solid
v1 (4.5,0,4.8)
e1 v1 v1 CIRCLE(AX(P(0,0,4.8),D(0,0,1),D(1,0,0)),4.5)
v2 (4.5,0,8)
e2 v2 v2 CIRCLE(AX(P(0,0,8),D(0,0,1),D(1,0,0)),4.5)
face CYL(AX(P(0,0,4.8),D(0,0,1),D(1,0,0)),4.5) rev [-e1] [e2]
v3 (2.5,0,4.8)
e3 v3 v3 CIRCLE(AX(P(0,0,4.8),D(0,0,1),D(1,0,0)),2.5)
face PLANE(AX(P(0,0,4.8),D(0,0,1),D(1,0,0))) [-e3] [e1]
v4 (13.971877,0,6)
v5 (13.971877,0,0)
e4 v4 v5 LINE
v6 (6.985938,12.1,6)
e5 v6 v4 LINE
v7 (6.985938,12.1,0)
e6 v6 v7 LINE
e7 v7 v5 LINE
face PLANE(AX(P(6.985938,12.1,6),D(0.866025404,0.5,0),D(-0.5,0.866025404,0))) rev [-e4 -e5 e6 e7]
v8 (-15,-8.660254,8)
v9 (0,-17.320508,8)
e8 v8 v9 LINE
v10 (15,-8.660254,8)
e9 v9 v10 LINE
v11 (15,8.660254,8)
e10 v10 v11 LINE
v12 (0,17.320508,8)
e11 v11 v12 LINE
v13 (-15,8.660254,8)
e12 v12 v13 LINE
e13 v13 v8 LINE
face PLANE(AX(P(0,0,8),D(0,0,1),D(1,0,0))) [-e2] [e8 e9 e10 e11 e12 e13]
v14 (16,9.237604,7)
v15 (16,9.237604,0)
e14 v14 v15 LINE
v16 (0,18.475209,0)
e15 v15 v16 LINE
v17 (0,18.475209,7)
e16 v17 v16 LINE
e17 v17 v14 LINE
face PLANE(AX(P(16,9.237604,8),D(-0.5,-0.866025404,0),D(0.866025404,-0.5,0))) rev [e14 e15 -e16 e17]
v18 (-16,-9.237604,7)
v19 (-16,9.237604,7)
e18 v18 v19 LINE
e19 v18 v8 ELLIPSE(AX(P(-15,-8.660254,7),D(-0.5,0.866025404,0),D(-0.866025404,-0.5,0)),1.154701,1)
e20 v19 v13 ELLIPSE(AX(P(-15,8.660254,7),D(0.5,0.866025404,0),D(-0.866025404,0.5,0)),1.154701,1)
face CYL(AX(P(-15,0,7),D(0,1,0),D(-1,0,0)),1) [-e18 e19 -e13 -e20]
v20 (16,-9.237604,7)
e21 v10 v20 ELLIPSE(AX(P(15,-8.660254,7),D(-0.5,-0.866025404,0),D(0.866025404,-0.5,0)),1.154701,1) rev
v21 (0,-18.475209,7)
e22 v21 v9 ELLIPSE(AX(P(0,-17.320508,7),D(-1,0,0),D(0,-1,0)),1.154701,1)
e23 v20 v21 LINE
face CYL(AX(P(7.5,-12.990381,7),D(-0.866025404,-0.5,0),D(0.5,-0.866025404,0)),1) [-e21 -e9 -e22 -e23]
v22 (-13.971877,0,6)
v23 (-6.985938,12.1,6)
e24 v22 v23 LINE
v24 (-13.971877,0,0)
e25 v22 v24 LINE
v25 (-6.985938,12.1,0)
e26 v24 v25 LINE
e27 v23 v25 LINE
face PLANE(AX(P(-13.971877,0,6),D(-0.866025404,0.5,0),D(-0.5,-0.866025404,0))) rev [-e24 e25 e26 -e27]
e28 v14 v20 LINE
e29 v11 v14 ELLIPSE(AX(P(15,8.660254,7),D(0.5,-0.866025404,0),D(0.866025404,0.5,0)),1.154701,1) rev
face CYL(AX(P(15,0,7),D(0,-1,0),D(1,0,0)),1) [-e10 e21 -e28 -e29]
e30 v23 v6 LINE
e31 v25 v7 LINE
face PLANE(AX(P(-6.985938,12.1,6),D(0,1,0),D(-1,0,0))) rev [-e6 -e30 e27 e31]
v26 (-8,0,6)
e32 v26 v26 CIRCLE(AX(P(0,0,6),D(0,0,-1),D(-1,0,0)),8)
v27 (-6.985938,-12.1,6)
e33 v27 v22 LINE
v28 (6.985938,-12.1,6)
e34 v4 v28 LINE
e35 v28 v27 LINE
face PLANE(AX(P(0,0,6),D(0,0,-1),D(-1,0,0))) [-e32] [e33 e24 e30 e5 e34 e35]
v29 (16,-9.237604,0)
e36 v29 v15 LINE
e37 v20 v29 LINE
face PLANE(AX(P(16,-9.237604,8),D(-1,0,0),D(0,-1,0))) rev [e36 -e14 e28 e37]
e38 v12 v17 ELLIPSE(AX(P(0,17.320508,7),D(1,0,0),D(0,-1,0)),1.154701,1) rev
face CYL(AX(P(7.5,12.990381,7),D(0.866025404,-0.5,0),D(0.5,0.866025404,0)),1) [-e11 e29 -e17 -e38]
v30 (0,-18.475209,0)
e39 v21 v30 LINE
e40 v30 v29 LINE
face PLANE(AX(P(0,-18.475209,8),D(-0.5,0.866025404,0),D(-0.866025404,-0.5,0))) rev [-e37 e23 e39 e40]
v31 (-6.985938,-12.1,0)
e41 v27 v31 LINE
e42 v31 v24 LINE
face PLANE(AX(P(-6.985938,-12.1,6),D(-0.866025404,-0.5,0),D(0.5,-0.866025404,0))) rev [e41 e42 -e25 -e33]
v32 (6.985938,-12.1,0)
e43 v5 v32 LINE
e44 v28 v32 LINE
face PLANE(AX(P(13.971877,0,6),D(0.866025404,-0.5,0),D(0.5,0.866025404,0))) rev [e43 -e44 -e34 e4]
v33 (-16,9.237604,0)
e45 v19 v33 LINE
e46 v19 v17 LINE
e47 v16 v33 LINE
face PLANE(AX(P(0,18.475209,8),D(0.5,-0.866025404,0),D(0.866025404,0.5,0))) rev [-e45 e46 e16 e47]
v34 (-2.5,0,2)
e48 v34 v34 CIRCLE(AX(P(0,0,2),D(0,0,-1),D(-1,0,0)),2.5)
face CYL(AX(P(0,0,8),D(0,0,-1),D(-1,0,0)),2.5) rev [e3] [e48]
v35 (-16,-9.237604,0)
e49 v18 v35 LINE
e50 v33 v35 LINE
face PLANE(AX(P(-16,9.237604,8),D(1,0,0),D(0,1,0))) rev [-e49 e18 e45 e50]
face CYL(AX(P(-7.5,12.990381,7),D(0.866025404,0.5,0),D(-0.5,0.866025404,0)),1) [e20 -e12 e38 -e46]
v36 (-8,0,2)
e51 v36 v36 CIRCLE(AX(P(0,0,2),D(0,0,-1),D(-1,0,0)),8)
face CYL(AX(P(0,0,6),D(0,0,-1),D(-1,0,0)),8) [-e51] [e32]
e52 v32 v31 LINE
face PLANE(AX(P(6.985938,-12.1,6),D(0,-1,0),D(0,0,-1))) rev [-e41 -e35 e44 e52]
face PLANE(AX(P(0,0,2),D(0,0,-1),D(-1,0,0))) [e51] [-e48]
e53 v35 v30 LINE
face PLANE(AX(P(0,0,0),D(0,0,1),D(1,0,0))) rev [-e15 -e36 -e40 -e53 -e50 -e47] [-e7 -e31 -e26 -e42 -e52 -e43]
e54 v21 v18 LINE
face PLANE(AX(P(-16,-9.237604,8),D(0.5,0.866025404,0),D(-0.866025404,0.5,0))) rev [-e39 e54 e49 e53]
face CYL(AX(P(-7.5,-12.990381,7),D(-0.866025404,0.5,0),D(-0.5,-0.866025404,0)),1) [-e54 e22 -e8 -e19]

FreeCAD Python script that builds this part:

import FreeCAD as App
import Part
import Sketcher

V = App.Vector
Q = App.Units.Quantity


def edges_at(feature, points):
    """Names of the edges that pass closest to the given points."""
    edges = feature.Shape.Edges
    near = lambda p: min(range(len(edges)), key=lambda i: edges[i].distToShape(Part.Vertex(*p))[0])
    return sorted({f"Edge{near(p) + 1}" for p in points})

doc = App.newDocument("Part")
body = doc.addObject("PartDesign::Body", "Body")

# Sketch on XY plane
sketch1 = body.newObject("Sketcher::SketchObject", "Sketch")
sketch1.AttachmentSupport = (doc.getObject("XY_Plane"), [""])
sketch1.MapMode = "FlatFace"
sketch1.addGeometry([
    Part.LineSegment(V(16, 9.2, 0), V(0, 18.5, 0)),  # 0
    Part.LineSegment(V(0, 18.5, 0), V(-16, 9.2, 0)),  # 1
    Part.LineSegment(V(-16, 9.2, 0), V(-16, -9.2, 0)),  # 2
    Part.LineSegment(V(-16, -9.2, 0), V(0, -18.5, 0)),  # 3
    Part.LineSegment(V(0, -18.5, 0), V(16, -9.2, 0)),  # 4
    Part.LineSegment(V(16, -9.2, 0), V(16, 9.2, 0)),  # 5
    Part.Circle(V(0, 0, 0), V(0, 0, 1), 2.5),  # 6
], False)
sketch1.addConstraint([
    Sketcher.Constraint("Coincident", 0, 2, 1, 1),
    Sketcher.Constraint("Coincident", 1, 2, 2, 1),
    Sketcher.Constraint("Coincident", 2, 2, 3, 1),
    Sketcher.Constraint("Coincident", 3, 2, 4, 1),
    Sketcher.Constraint("Coincident", 4, 2, 5, 1),
    Sketcher.Constraint("Coincident", 5, 2, 0, 1),
    Sketcher.Constraint("Vertical", 2),
    Sketcher.Constraint("Vertical", 5),
    Sketcher.Constraint("Coincident", 6, 3, -1, 1),
    Sketcher.Constraint("Symmetric", 0, 2, 3, 2, -1, 1),
    Sketcher.Constraint("Symmetric", 1, 2, 4, 2, -1, 1),
    Sketcher.Constraint("PointOnObject", 0, 2, -2),
    Sketcher.Constraint("Parallel", 0, 3),
    Sketcher.Constraint("Horizontal", 2, 2, 4, 2),
    Sketcher.Constraint("Diameter", 6, Q("5 mm")),
    Sketcher.Constraint("Angle", 0, Q("150 deg")),
    Sketcher.Constraint("DistanceX", 1, 2, -1, 1, Q("16 mm")),
    Sketcher.Constraint("DistanceY", 2, 2, 2, 1, Q("18.475209 mm")),
])
pad1 = body.newObject("PartDesign::Pad", "Pad")
pad1.Profile = sketch1
pad1.Length = 8

# Sketch on XY plane
sketch2 = body.newObject("Sketcher::SketchObject", "Sketch001")
sketch2.AttachmentSupport = (doc.getObject("XY_Plane"), [""])
sketch2.MapMode = "FlatFace"
sketch2.AttachmentOffset = App.Placement(V(0, 0, 8), App.Rotation())
sketch2.addGeometry(Part.Circle(V(0, 0, 0), V(0, 0, 1), 4.5), False)
sketch2.addConstraint([
    Sketcher.Constraint("Coincident", 0, 3, -1, 1),
    Sketcher.Constraint("Diameter", 0, Q("9 mm")),
])
pocket1 = body.newObject("PartDesign::Pocket", "Pocket")
pocket1.Profile = sketch2
pocket1.Length = 3.2

# Sketch on XY plane
sketch3 = body.newObject("Sketcher::SketchObject", "Sketch002")
sketch3.AttachmentSupport = (doc.getObject("XY_Plane"), [""])
sketch3.MapMode = "FlatFace"
sketch3.addGeometry([
    Part.LineSegment(V(-14, 0, 0), V(-7, 12, 0)),  # 0
    Part.LineSegment(V(-7, 12, 0), V(7, 12, 0)),  # 1
    Part.LineSegment(V(7, 12, 0), V(14, 0, 0)),  # 2
    Part.LineSegment(V(14, 0, 0), V(7, -12, 0)),  # 3
    Part.LineSegment(V(7, -12, 0), V(-7, -12, 0)),  # 4
    Part.LineSegment(V(-7, -12, 0), V(-14, 0, 0)),  # 5
    Part.Circle(V(0, 0, 0), V(0, 0, 1), 8),  # 6
], False)
sketch3.addConstraint([
    Sketcher.Constraint("Coincident", 0, 2, 1, 1),
    Sketcher.Constraint("Coincident", 1, 2, 2, 1),
    Sketcher.Constraint("Coincident", 2, 2, 3, 1),
    Sketcher.Constraint("Coincident", 3, 2, 4, 1),
    Sketcher.Constraint("Coincident", 4, 2, 5, 1),
    Sketcher.Constraint("Coincident", 5, 2, 0, 1),
    Sketcher.Constraint("Horizontal", 1),
    Sketcher.Constraint("Horizontal", 4),
    Sketcher.Constraint("Coincident", 6, 3, -1, 1),
    Sketcher.Constraint("Symmetric", 0, 2, 3, 2, -1, 1),
    Sketcher.Constraint("Symmetric", 2, 2, 5, 2, -1, 1),
    Sketcher.Constraint("PointOnObject", 2, 2, -1),
    Sketcher.Constraint("Parallel", 2, 5),
    Sketcher.Constraint("Vertical", 1, 2, 3, 2),
    Sketcher.Constraint("Diameter", 6, Q("16 mm")),
    Sketcher.Constraint("Angle", 0, Q("60 deg")),
    Sketcher.Constraint("DistanceY", -1, 1, 0, 2, Q("12.1 mm")),
    Sketcher.Constraint("DistanceX", 1, 1, 1, 2, Q("13.971877 mm")),
])
pocket2 = body.newObject("PartDesign::Pocket", "Pocket001")
pocket2.Profile = sketch3
pocket2.Length = 6
pocket2.Reversed = True
doc.recompute()

fillet = body.newObject("PartDesign::Fillet", "Fillet")
fillet.Base = (pocket2, edges_at(pocket2, [
    (-8, 13.856, 8),
    (-16, 0, 8),
    (-8, -13.856, 8),
    (8, -13.856, 8),
    (16, 0, 8),
    (8, 13.856, 8),
]))
fillet.Radius = 1

# Sketch on XY plane
sketch4 = body.newObject("Sketcher::SketchObject", "Sketch003")
sketch4.AttachmentSupport = (doc.getObject("XY_Plane"), [""])
sketch4.MapMode = "FlatFace"
sketch4.addGeometry(Part.Circle(V(0, 0, 0), V(0, 0, 1), 8), False)
sketch4.addConstraint([
    Sketcher.Constraint("Coincident", 0, 3, -1, 1),
    Sketcher.Constraint("Diameter", 0, Q("16 mm")),
])
pocket3 = body.newObject("PartDesign::Pocket", "Pocket002")
pocket3.Profile = sketch4
pocket3.Length = 2
pocket3.Reversed = True

doc.recompute()
